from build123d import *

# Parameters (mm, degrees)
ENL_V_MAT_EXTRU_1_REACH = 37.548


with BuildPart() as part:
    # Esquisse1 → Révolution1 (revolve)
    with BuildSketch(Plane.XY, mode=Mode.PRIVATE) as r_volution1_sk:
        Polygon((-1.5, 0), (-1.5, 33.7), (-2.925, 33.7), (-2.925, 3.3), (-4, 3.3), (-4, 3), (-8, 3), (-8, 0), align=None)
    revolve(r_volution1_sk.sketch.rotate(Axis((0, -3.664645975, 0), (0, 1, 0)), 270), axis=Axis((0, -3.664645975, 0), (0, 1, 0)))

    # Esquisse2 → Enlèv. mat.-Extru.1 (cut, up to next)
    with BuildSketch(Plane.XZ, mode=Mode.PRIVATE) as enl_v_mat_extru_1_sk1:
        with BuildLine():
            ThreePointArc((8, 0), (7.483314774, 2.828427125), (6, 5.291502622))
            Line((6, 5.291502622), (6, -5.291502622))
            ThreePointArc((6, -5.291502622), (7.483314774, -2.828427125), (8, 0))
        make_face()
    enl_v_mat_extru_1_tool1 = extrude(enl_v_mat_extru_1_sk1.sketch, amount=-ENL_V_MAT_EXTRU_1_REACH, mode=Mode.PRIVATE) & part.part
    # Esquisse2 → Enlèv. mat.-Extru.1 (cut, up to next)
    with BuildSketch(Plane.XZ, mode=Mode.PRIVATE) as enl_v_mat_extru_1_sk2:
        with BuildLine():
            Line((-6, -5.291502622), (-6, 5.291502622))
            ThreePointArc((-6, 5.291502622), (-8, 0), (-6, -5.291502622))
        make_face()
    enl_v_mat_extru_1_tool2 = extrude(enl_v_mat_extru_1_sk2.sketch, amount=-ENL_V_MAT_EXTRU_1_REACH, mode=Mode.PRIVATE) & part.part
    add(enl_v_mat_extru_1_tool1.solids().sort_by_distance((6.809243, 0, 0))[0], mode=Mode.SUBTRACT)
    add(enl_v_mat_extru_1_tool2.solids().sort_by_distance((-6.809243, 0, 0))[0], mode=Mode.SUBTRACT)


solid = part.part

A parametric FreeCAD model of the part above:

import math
import FreeCAD as App
import Part
import Sketcher

doc = App.newDocument("Part")
body = doc.addObject("PartDesign::Body", "Body")

sketch1 = body.newObject("Sketcher::SketchObject", "Sketch")
sketch1.AttachmentSupport = (doc.getObject("XY_Plane"), [""])
sketch1.MapMode = "FlatFace"
sketch1.addGeometry(Part.LineSegment(App.Vector(-1.5, 0, 0), App.Vector(-1.5, 33.7, 0)), False)
sketch1.addGeometry(Part.LineSegment(App.Vector(-1.5, 33.7, 0), App.Vector(-2.92, 33.7, 0)), False)
sketch1.addGeometry(Part.LineSegment(App.Vector(-2.92, 33.7, 0), App.Vector(-2.92, 3.3, 0)), False)
sketch1.addGeometry(Part.LineSegment(App.Vector(-2.92, 3.3, 0), App.Vector(-4, 3.3, 0)), False)
sketch1.addGeometry(Part.LineSegment(App.Vector(-4, 3.3, 0), App.Vector(-4, 3, 0)), False)
sketch1.addGeometry(Part.LineSegment(App.Vector(-4, 3, 0), App.Vector(-8, 3, 0)), False)
sketch1.addGeometry(Part.LineSegment(App.Vector(-8, 3, 0), App.Vector(-8, 0, 0)), False)
sketch1.addGeometry(Part.LineSegment(App.Vector(-8, 0, 0), App.Vector(-1.5, 0, 0)), False)
sketch1.addConstraint(Sketcher.Constraint("Coincident", 0, 2, 1, 1))
sketch1.addConstraint(Sketcher.Constraint("Coincident", 1, 2, 2, 1))
sketch1.addConstraint(Sketcher.Constraint("Coincident", 2, 2, 3, 1))
sketch1.addConstraint(Sketcher.Constraint("Coincident", 3, 2, 4, 1))
sketch1.addConstraint(Sketcher.Constraint("Coincident", 4, 2, 5, 1))
sketch1.addConstraint(Sketcher.Constraint("Coincident", 5, 2, 6, 1))
sketch1.addConstraint(Sketcher.Constraint("Coincident", 6, 2, 7, 1))
sketch1.addConstraint(Sketcher.Constraint("Coincident", 7, 2, 0, 1))
sketch1.addConstraint(Sketcher.Constraint("Vertical", 0))
sketch1.addConstraint(Sketcher.Constraint("Horizontal", 1))
sketch1.addConstraint(Sketcher.Constraint("Vertical", 2))
sketch1.addConstraint(Sketcher.Constraint("Horizontal", 3))
sketch1.addConstraint(Sketcher.Constraint("Vertical", 4))
sketch1.addConstraint(Sketcher.Constraint("Horizontal", 5))
sketch1.addConstraint(Sketcher.Constraint("Vertical", 6))
sketch1.addConstraint(Sketcher.Constraint("Horizontal", 7))
sketch1.addConstraint(Sketcher.Constraint("PointOnObject", 6, 2, -1))
sketch1.addConstraint(Sketcher.Constraint("DistanceX", 5, 2, 5, 1, 4.0))
sketch1.addConstraint(Sketcher.Constraint("DistanceY", 6, 2, 6, 1, 3.0))
sketch1.addConstraint(Sketcher.Constraint("DistanceX", 7, 1, 7, 2, 6.5))
sketch1.addConstraint(Sketcher.Constraint("DistanceY", 0, 1, 0, 2, 33.7))
sketch1.addConstraint(Sketcher.Constraint("DistanceY", 2, 2, 2, 1, 30.4))
sketch1.addConstraint(Sketcher.Constraint("DistanceX", 3, 2, -1, 1, 4.0))
sketch1.addConstraint(Sketcher.Constraint("DistanceX", 1, 2, 1, 1, 1.425))
revolution = body.newObject("PartDesign::Revolution", "Revolution")
revolution.Profile = sketch1
revolution.ReferenceAxis = (sketch1, ["V_Axis"])
revolution.Angle = 360

sketch2 = body.newObject("Sketcher::SketchObject", "Sketch001")
sketch2.AttachmentSupport = (doc.getObject("XZ_Plane"), [""])
sketch2.MapMode = "FlatFace"
sketch2.addGeometry(Part.ArcOfCircle(Part.Circle(App.Vector(0, 0, 0), App.Vector(0, 0, 1), 8), math.radians(0), math.radians(41)), False)
sketch2.addGeometry(Part.LineSegment(App.Vector(6, 5, 0), App.Vector(6, -5, 0)), False)
sketch2.addGeometry(Part.ArcOfCircle(Part.Circle(App.Vector(0, 0, 0), App.Vector(0, 0, 1), 8), math.radians(-41), math.radians(0)), False)
sketch2.addConstraint(Sketcher.Constraint("Coincident", 0, 2, 1, 1))
sketch2.addConstraint(Sketcher.Constraint("Coincident", 1, 2, 2, 1))
sketch2.addConstraint(Sketcher.Constraint("Tangent", 2, 2, 0, 1))
sketch2.addConstraint(Sketcher.Constraint("Vertical", 1))
sketch2.addConstraint(Sketcher.Constraint("Coincident", 0, 3, -1, 1))
sketch2.addConstraint(Sketcher.Constraint("Equal", 0, 2))
sketch2.addConstraint(Sketcher.Constraint("PointOnObject", 2, 2, -1))
sketch2.addConstraint(Sketcher.Constraint("Radius", 0, 8.0))
sketch2.addConstraint(Sketcher.Constraint("DistanceX", -1, 1, 0, 2, 6.0))
pocket1 = body.newObject("PartDesign::Pocket", "Pocket")
pocket1.Profile = sketch2
pocket1.Type = "UpToFirst"

sketch3 = body.newObject("Sketcher::SketchObject", "Sketch002")
sketch3.AttachmentSupport = (doc.getObject("XZ_Plane"), [""])
sketch3.MapMode = "FlatFace"
sketch3.addGeometry(Part.LineSegment(App.Vector(-6, -5, 0), App.Vector(-6, 5, 0)), False)
sketch3.addGeometry(Part.ArcOfCircle(Part.Circle(App.Vector(0, 0, 0), App.Vector(0, 0, 1), 8), math.radians(139), math.radians(221)), False)
sketch3.addConstraint(Sketcher.Constraint("Coincident", 0, 1, 1, 2))
sketch3.addConstraint(Sketcher.Constraint("Coincident", 1, 1, 0, 2))
sketch3.addConstraint(Sketcher.Constraint("Vertical", 0))
sketch3.addConstraint(Sketcher.Constraint("Coincident", 1, 3, -1, 1))
sketch3.addConstraint(Sketcher.Constraint("Radius", 1, 8.0))
sketch3.addConstraint(Sketcher.Constraint("DistanceX", 0, 1, -1, 1, 6.0))
pocket2 = body.newObject("PartDesign::Pocket", "Pocket001")
pocket2.Profile = sketch3
pocket2.Type = "UpToFirst"

doc.recompute()
